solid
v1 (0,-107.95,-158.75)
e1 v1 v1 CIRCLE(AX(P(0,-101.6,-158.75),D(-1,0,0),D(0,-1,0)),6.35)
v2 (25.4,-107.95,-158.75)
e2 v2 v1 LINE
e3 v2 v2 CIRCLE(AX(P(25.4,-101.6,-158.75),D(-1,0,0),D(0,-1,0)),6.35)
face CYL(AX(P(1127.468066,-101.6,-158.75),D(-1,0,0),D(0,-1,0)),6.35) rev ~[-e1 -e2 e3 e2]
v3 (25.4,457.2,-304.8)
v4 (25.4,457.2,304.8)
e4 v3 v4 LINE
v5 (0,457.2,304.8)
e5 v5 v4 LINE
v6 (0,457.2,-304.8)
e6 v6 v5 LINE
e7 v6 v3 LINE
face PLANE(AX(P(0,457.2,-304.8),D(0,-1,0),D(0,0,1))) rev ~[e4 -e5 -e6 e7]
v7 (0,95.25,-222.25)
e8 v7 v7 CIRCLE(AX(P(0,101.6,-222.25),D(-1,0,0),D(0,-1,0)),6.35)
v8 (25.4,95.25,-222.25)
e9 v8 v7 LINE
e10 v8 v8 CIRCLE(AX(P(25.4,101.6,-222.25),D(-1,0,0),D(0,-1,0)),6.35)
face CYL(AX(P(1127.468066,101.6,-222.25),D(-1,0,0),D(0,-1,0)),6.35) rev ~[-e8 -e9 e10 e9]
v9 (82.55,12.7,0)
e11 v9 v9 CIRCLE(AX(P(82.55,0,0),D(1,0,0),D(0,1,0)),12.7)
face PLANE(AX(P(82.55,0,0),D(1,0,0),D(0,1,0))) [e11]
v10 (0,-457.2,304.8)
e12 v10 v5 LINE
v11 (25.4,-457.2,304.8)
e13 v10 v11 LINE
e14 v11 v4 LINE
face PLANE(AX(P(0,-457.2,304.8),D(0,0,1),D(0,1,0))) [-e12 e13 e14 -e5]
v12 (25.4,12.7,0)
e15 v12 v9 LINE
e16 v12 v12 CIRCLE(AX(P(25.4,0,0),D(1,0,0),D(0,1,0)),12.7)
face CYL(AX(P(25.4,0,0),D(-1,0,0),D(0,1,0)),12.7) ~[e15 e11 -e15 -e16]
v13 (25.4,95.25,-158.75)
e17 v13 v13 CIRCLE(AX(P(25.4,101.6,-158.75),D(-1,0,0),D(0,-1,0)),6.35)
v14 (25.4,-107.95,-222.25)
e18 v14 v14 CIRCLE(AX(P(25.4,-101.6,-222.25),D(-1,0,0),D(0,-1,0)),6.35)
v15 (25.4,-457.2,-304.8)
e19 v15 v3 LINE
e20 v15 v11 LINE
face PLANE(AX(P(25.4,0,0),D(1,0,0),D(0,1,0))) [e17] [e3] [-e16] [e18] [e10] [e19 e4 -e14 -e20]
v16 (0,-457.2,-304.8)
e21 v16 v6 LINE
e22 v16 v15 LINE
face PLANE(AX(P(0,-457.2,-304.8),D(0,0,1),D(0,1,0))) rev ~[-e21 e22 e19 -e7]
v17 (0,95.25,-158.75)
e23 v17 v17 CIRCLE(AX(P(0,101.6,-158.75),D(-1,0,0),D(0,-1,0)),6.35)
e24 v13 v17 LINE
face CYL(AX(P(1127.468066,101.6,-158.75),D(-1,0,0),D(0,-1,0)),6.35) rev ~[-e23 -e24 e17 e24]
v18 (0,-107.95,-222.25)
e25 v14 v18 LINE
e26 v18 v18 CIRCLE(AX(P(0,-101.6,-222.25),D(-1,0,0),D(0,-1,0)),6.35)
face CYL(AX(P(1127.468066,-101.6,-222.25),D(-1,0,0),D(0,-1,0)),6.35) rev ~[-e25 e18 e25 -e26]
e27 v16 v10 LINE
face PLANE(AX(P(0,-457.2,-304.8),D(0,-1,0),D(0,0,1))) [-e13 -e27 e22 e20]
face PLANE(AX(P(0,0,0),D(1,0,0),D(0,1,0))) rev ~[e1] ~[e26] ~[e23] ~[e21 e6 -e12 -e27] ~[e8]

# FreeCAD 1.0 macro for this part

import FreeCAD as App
import Part
import Sketcher
from FreeCAD import Vector
Q = App.Units.Quantity


def add_polygon(sketch, points):
    """Adds a closed chain of lines whose ends are joined by coincident constraints."""
    first, n = sketch.GeometryCount, len(points)
    for a, b in zip(points, points[1:] + points[:1]):
        sketch.addGeometry(Part.LineSegment(App.Vector(*a, 0), App.Vector(*b, 0)), False)
    for i in range(n):
        sketch.addConstraint(Sketcher.Constraint("Coincident", first + i, 2, first + (i + 1) % n, 1))

doc = App.newDocument("Part")
body = doc.addObject("PartDesign::Body", "Body")

# Sketch on YZ plane
sketch1 = doc.addObject("Sketcher::SketchObject", "Sketch")
body.addObject(sketch1)
sketch1.AttachmentSupport = (doc.YZ_Plane, [""])
sketch1.MapMode = "FlatFace"
add_polygon(sketch1, [(-457.2, 304.8), (-457.2, -304.8), (457.2, -304.8), (457.2, 304.8)])  # lines 0-3
sketch1.addConstraint([
    Sketcher.Constraint("Vertical", 0),
    Sketcher.Constraint("Horizontal", 1),
    Sketcher.Constraint("Vertical", 2),
    Sketcher.Constraint("Horizontal", 3),
    Sketcher.Constraint("Symmetric", 0, 2, 2, 2, -1, 1),
    Sketcher.Constraint("DistanceX", 1, 1, 1, 2, Q("36 in")),
    Sketcher.Constraint("DistanceY", 0, 2, 0, 1, Q("24 in")),
])
pad1 = doc.addObject("PartDesign::Pad", "Pad")
body.addObject(pad1)
pad1.Profile = sketch1
pad1.Length = Q("1 in")

# Sketch on YZ plane
sketch2 = doc.addObject("Sketcher::SketchObject", "Sketch001")
body.addObject(sketch2)
sketch2.AttachmentSupport = (doc.YZ_Plane, [""])
sketch2.MapMode = "FlatFace"
sketch2.AttachmentOffset = App.Placement(Vector(0, 0, 1 * 25.4), App.Rotation())
sketch2.addGeometry(Part.Circle(Vector(0, 0, 0), Vector(0, 0, 1), 12.7), False)
sketch2.addConstraint([
    Sketcher.Constraint("Coincident", 0, 3, -1, 1),
    Sketcher.Constraint("Diameter", 0, Q("1 in")),
])
pad2 = doc.addObject("PartDesign::Pad", "Pad001")
body.addObject(pad2)
pad2.Profile = sketch2
pad2.Length = Q("2.25 in")

# Sketch on YZ plane
sketch3 = doc.addObject("Sketcher::SketchObject", "Sketch002")
body.addObject(sketch3)
sketch3.AttachmentSupport = (doc.YZ_Plane, [""])
sketch3.MapMode = "FlatFace"
sketch3.AttachmentOffset = App.Placement(Vector(0, 0, 1 * 25.4), App.Rotation())
sketch3.addGeometry([
    Part.Circle(Vector(-101.6, -158.75, 0), Vector(0, 0, 1), 6.35),
    Part.Circle(Vector(101.6, -158.75, 0), Vector(0, 0, 1), 6.35),
    Part.Circle(Vector(101.6, -222.25, 0), Vector(0, 0, 1), 6.35),
    Part.Circle(Vector(-101.6, -222.25, 0), Vector(0, 0, 1), 6.35),
], False)
sketch3.addConstraint([
    Sketcher.Constraint("Equal", 0, 1),
    Sketcher.Constraint("Equal", 1, 2),
    Sketcher.Constraint("Equal", 2, 3),
    Sketcher.Constraint("Symmetric", 0, 3, 1, 3, -2),
    Sketcher.Constraint("Symmetric", 2, 3, 3, 3, -2),
    Sketcher.Constraint("Vertical", 1, 3, 2, 3),
    Sketcher.Constraint("Diameter", 0, Q("0.5 in")),
    Sketcher.Constraint("DistanceX", 0, 3, -1, 1, Q("4 in")),
    Sketcher.Constraint("DistanceY", 2, 3, 1, 3, Q("2.5 in")),
    Sketcher.Constraint("DistanceY", 0, 3, -1, 1, Q("6.25 in")),
])
doc.recompute()
hole = doc.addObject("PartDesign::Hole", "Hole")
body.addObject(hole)
hole.Profile = sketch3
hole.ThreadType = "None"
hole.Diameter = Q("0.5 in")
hole.DepthType = "ThroughAll"

doc.recompute()
